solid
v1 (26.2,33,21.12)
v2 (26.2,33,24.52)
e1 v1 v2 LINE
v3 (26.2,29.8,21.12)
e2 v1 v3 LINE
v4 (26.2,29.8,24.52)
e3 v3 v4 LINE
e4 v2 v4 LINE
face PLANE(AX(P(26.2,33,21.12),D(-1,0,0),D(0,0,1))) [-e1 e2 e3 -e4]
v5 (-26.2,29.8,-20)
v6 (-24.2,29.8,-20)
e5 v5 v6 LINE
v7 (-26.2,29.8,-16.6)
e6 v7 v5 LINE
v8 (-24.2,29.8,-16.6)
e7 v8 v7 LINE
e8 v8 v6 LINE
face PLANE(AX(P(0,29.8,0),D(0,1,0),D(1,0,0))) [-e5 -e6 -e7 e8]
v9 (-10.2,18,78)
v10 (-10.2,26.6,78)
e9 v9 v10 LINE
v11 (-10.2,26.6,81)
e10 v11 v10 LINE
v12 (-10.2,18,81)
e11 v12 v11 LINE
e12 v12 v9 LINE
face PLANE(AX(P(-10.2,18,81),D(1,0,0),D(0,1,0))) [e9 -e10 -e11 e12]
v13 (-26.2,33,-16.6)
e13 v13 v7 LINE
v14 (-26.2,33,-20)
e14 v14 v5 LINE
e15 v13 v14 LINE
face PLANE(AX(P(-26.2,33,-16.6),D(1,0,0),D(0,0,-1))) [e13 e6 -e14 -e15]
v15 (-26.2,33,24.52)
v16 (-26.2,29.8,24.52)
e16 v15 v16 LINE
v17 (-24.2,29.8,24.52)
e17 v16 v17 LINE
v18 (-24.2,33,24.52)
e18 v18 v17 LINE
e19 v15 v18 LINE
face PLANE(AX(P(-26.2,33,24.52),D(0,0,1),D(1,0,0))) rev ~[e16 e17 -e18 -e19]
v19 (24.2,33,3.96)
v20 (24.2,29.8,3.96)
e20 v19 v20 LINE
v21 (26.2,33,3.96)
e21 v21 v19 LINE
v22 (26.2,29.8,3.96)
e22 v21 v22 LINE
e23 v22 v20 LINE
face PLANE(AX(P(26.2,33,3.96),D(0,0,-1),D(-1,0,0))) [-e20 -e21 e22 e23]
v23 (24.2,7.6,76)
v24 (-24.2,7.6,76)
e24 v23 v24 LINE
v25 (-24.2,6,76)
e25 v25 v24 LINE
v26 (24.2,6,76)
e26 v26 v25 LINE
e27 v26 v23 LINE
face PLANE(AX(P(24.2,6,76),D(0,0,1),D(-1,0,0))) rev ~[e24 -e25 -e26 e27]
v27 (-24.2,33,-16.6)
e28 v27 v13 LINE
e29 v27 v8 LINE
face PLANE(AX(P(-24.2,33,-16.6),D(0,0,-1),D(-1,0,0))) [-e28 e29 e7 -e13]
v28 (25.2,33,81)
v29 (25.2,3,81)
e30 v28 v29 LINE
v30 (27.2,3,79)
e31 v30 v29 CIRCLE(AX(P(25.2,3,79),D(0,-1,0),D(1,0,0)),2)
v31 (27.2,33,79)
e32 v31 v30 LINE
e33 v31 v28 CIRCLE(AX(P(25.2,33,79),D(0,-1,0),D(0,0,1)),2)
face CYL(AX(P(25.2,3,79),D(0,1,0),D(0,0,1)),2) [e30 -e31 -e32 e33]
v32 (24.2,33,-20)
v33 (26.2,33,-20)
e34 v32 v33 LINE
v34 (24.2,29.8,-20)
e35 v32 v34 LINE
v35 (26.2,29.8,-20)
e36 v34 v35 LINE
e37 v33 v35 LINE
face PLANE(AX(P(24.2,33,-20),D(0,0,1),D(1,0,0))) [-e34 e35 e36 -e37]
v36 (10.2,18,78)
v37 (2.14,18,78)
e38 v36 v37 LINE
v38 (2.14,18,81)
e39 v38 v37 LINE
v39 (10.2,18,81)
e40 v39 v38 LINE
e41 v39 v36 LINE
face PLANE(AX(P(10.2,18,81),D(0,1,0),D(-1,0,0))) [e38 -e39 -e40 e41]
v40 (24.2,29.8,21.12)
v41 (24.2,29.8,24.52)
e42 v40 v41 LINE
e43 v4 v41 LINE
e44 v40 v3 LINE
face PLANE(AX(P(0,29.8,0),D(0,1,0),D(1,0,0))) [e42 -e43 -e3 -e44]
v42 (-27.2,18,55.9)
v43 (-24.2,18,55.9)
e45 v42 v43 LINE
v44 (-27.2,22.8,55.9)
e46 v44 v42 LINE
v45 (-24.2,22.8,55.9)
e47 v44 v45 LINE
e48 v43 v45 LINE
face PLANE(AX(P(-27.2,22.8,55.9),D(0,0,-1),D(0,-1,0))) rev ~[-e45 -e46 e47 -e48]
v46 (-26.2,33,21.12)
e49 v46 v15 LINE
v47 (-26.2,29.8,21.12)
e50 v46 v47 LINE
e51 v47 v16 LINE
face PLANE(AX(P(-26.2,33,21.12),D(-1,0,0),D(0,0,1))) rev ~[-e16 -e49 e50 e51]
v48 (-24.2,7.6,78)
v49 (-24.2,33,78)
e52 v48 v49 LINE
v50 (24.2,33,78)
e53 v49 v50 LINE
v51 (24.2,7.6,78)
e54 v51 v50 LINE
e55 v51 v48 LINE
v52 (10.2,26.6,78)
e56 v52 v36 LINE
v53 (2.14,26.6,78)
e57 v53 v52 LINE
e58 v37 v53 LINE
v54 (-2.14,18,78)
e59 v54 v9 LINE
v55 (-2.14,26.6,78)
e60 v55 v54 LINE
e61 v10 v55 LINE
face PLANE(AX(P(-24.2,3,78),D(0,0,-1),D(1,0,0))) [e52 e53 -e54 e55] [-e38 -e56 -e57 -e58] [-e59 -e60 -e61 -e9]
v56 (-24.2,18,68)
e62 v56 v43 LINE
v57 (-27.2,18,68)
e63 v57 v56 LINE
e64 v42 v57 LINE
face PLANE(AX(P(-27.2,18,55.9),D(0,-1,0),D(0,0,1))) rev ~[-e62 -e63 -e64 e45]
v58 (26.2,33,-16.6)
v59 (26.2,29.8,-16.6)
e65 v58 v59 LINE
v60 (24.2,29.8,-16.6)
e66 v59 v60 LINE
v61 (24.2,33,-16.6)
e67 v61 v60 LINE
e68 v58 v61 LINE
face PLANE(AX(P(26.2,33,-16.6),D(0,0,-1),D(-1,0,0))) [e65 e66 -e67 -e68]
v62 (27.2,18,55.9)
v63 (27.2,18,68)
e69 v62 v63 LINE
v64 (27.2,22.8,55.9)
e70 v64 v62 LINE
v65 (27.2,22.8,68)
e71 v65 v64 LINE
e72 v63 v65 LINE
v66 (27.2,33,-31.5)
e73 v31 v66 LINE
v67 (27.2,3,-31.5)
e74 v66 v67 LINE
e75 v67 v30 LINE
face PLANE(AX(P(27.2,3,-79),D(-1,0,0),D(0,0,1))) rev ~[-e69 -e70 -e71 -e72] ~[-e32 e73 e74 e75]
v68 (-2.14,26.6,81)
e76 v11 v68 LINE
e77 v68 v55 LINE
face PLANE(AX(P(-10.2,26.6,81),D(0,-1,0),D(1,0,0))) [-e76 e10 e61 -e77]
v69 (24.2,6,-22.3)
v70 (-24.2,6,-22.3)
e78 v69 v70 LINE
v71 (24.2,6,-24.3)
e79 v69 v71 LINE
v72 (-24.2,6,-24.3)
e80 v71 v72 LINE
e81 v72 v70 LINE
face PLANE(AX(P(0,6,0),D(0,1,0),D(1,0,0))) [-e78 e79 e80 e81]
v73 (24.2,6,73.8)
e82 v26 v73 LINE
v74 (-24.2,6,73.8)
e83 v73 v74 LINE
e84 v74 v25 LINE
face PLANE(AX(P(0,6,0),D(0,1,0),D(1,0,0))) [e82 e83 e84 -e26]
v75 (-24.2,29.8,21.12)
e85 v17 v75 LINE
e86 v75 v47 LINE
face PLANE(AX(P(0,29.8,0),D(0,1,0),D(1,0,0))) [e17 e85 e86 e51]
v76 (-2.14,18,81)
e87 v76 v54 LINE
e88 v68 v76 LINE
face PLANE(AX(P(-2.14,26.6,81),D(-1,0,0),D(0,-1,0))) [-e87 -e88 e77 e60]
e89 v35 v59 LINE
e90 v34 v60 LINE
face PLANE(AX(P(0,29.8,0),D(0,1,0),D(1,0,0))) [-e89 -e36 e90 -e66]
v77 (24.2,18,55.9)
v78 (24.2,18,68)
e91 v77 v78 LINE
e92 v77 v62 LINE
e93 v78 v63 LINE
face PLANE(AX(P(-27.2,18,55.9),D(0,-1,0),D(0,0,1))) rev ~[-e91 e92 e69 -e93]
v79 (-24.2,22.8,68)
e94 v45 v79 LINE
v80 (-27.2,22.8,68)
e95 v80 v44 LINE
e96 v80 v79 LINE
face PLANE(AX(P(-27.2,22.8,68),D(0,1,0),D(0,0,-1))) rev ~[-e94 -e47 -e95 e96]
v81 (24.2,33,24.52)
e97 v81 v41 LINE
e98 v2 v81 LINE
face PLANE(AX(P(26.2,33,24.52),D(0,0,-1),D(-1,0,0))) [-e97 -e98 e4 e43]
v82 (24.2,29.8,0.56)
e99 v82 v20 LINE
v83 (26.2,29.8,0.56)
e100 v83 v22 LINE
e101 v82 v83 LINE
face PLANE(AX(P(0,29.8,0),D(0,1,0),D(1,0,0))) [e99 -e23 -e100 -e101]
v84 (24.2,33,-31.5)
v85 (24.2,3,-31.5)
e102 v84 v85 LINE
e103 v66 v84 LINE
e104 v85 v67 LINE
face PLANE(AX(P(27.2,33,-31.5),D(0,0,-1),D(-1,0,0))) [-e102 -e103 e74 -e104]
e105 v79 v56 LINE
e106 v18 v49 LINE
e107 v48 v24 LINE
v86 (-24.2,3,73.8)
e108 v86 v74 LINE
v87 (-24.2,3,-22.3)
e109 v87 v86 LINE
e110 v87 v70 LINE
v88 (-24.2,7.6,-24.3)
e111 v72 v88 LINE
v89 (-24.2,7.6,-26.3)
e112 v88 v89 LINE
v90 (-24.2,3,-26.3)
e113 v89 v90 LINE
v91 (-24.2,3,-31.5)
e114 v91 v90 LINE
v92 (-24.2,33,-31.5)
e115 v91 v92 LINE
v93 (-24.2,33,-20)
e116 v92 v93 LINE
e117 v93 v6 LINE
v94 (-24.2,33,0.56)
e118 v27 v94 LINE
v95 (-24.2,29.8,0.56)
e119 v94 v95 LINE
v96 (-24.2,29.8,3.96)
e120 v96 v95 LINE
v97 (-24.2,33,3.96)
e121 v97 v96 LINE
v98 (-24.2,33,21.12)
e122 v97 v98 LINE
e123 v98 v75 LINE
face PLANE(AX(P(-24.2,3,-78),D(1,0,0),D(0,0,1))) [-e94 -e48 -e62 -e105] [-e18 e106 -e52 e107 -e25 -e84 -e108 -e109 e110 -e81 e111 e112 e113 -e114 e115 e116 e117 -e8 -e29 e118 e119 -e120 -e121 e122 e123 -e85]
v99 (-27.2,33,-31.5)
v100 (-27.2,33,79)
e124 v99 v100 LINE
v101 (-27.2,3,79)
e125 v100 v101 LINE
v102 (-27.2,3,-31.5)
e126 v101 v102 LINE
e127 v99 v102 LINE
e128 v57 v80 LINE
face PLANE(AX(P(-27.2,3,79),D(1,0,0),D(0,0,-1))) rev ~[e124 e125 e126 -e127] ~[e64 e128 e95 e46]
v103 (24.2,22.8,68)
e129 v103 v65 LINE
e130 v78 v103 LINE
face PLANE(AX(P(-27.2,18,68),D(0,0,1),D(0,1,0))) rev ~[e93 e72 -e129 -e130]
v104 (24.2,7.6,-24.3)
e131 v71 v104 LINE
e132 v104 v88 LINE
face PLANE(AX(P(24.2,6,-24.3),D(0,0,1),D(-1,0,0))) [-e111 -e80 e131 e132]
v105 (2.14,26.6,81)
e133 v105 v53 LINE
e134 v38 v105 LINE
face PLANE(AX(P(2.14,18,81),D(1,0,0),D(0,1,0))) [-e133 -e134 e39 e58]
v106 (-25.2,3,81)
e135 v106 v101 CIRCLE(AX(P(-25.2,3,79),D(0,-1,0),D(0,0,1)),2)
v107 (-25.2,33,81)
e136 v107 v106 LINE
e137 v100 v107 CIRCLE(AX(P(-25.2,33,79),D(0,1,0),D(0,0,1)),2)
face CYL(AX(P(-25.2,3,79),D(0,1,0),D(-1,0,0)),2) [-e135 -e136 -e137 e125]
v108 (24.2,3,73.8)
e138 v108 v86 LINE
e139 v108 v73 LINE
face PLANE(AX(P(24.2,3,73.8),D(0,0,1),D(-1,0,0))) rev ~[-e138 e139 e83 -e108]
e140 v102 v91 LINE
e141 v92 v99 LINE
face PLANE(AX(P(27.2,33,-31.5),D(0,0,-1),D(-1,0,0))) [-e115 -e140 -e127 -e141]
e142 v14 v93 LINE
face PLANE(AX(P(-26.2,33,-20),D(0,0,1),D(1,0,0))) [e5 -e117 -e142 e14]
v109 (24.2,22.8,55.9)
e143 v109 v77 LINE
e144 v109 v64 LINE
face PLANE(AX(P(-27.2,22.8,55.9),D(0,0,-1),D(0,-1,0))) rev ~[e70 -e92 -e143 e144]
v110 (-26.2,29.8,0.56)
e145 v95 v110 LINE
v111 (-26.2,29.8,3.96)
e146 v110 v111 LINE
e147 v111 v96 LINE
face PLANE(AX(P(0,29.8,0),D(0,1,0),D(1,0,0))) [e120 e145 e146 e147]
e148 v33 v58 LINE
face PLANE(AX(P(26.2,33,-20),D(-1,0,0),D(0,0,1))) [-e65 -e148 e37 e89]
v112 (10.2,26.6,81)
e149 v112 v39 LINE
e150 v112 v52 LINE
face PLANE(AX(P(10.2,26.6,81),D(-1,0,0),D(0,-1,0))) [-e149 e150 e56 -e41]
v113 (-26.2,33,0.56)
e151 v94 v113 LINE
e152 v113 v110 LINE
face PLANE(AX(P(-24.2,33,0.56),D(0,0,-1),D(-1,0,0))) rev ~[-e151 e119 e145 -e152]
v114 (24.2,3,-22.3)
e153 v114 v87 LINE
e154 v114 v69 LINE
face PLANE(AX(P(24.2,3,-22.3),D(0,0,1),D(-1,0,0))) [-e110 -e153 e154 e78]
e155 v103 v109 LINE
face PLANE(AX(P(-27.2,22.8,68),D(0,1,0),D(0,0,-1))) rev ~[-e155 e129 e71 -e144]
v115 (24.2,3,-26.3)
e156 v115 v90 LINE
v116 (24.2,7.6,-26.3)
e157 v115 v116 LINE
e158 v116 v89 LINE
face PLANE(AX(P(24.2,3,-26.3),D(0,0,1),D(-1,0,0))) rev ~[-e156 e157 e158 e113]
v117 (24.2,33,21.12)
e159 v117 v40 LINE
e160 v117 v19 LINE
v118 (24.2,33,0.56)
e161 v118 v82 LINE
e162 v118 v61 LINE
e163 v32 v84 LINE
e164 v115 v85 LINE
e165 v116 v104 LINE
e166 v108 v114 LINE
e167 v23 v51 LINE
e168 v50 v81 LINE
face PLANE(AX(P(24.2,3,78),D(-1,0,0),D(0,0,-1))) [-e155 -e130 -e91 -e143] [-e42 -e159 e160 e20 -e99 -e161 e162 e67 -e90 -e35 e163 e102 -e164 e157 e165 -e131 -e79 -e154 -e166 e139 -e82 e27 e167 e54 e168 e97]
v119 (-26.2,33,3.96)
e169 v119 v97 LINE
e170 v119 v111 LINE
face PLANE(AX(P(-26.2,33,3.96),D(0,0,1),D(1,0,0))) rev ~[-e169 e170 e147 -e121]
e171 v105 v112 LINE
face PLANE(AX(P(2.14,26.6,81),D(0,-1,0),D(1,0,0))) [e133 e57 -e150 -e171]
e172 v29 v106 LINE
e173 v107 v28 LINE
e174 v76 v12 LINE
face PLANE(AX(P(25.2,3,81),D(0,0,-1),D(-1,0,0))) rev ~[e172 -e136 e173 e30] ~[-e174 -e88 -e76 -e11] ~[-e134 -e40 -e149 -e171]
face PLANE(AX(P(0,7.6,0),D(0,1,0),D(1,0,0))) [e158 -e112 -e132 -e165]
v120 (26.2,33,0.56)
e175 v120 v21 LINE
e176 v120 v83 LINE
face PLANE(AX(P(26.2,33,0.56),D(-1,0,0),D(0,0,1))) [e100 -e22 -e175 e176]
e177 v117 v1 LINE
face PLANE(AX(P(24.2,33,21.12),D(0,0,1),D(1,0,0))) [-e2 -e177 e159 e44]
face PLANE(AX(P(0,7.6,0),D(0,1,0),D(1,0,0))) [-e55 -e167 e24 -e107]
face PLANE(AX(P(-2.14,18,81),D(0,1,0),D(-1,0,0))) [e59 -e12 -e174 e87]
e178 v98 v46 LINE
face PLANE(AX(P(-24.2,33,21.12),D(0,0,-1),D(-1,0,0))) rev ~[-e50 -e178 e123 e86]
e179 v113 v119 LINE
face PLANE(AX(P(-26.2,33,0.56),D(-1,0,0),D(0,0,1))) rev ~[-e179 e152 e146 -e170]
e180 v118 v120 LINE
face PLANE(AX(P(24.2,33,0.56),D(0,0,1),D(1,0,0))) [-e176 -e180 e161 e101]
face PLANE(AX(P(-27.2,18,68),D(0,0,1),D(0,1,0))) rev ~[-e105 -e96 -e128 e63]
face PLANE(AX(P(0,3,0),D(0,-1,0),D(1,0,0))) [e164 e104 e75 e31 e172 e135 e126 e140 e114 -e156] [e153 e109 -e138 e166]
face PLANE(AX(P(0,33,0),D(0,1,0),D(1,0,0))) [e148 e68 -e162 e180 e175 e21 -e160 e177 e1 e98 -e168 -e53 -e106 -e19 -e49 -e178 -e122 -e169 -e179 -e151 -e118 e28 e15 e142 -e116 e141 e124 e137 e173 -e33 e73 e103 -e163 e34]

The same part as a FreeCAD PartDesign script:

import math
import FreeCAD as App
import Part
import Sketcher

V = App.Vector


def edges_at(feature, points):
    """Names of the edges that pass closest to the given points."""
    edges = feature.Shape.Edges
    near = lambda p: min(range(len(edges)), key=lambda i: edges[i].distToShape(Part.Vertex(*p))[0])
    return sorted({f"Edge{near(p) + 1}" for p in points})


def add_polygon(sketch, points):
    """Adds a closed chain of lines whose ends are joined by coincident constraints."""
    first, n = sketch.GeometryCount, len(points)
    for a, b in zip(points, points[1:] + points[:1]):
        sketch.addGeometry(Part.LineSegment(App.Vector(*a, 0), App.Vector(*b, 0)), False)
    for i in range(n):
        sketch.addConstraint(Sketcher.Constraint("Coincident", first + i, 2, first + (i + 1) % n, 1))

doc = App.newDocument("Part")
body = doc.addObject("PartDesign::Body", "Body")

sketch1 = body.newObject("Sketcher::SketchObject", "Sketch")
sketch1.AttachmentSupport = (doc.getObject("XZ_Plane"), [""])
sketch1.MapMode = "FlatFace"
add_polygon(sketch1, [(30, 84), (30, -84), (-30, -84), (-30, 84)])
sketch1.addConstraint([
    Sketcher.Constraint("Vertical", 0),
    Sketcher.Constraint("Horizontal", 1),
    Sketcher.Constraint("Vertical", 2),
    Sketcher.Constraint("Horizontal", 3),
    Sketcher.Constraint("Symmetric", 0, 2, 2, 2, -1, 1),
    Sketcher.Constraint("DistanceY", 0, 2, 0, 1, 168.0),
    Sketcher.Constraint("DistanceX", 1, 2, 1, 1, 60.4),
])
pad1 = body.newObject("PartDesign::Pad", "Pad")
pad1.Profile = sketch1
pad1.Length = 3
pad1.Reversed = True

sketch2 = body.newObject("Sketcher::SketchObject", "Sketch001")
sketch2.AttachmentSupport = (doc.getObject("XZ_Plane"), [""])
sketch2.MapMode = "FlatFace"
sketch2.AttachmentOffset = App.Placement(V(0, 0, -3), App.Rotation())
add_polygon(sketch2, [(27, 81), (27, -81), (-27, -81), (-27, 81)])
add_polygon(sketch2, [(-24, -78), (24, -78), (24, 78), (-24, 78)])
sketch2.addConstraint([
    Sketcher.Constraint("Vertical", 0),
    Sketcher.Constraint("Horizontal", 1),
    Sketcher.Constraint("Vertical", 2),
    Sketcher.Constraint("Horizontal", 3),
    Sketcher.Constraint("Horizontal", 4),
    Sketcher.Constraint("Vertical", 5),
    Sketcher.Constraint("Horizontal", 6),
    Sketcher.Constraint("Vertical", 7),
    Sketcher.Constraint("Symmetric", 0, 2, 2, 2, -1, 1),
    Sketcher.Constraint("Symmetric", 4, 2, 6, 2, -1, 1),
    Sketcher.Constraint("DistanceX", 4, 2, 0, 2, 3.0),
    Sketcher.Constraint("DistanceY", 0, 2, 4, 2, 3.0),
    Sketcher.Constraint("DistanceY", 0, 2, 0, 1, 162.0),
    Sketcher.Constraint("DistanceX", 1, 2, 1, 1, 54.4),
])
pad2 = body.newObject("PartDesign::Pad", "Pad001")
pad2.Profile = sketch2
pad2.Length = 30
pad2.Reversed = True
doc.recompute()

fillet = body.newObject("PartDesign::Fillet", "Fillet")
fillet.Base = (pad2, edges_at(pad2, [
    (27.2, 18, 81),
    (-27.2, 18, 81),
    (-30.2, 1.5, 84),
    (30.2, 1.5, 84),
    (27.2, 18, -81),
    (-27.2, 18, -81),
    (30.2, 1.5, -84),
    (-30.2, 1.5, -84),
]))
fillet.Radius = 2

sketch3 = body.newObject("Sketcher::SketchObject", "Sketch002")
sketch3.AttachmentSupport = (doc.getObject("XZ_Plane"), [""])
sketch3.MapMode = "FlatFace"
sketch3.AttachmentOffset = App.Placement(V(0, 0, -3), App.Rotation())
add_polygon(sketch3, [(24.2, -22.3), (24.2, -26.3), (-24.2, -26.3), (-24.2, -22.3)])
add_polygon(sketch3, [(24.2, 78), (24.2, 73.8), (-24.2, 73.8), (-24.2, 78)])
sketch3.addConstraint([
    Sketcher.Constraint("Vertical", 0),
    Sketcher.Constraint("Horizontal", 1),
    Sketcher.Constraint("Vertical", 2),
    Sketcher.Constraint("Horizontal", 3),
    Sketcher.Constraint("Vertical", 4),
    Sketcher.Constraint("Horizontal", 5),
    Sketcher.Constraint("Vertical", 6),
    Sketcher.Constraint("Horizontal", 7),
    Sketcher.Constraint("Vertical", 3, 2, 4, 2),
    Sketcher.Constraint("Vertical", 2, 2, 5, 2),
    Sketcher.Constraint("DistanceY", 0, 2, 0, 1, 4.0),
    Sketcher.Constraint("DistanceY", 4, 2, 4, 1, 4.2),
    Sketcher.Constraint("DistanceY", 3, 2, 4, 2, 96.1),
    Sketcher.Constraint("DistanceX", 1, 2, 1, 1, 48.4),
    Sketcher.Constraint("DistanceY", -1, 1, 6, 2, 78.0),
    Sketcher.Constraint("DistanceX", -1, 1, 0, 2, 24.2),
])
pad3 = body.newObject("PartDesign::Pad", "Pad002")
pad3.Profile = sketch3
pad3.Length = 3
pad3.Reversed = True

sketch4 = body.newObject("Sketcher::SketchObject", "Sketch003")
sketch4.AttachmentSupport = (doc.getObject("XZ_Plane"), [""])
sketch4.MapMode = "FlatFace"
sketch4.AttachmentOffset = App.Placement(V(0, 0, -6), App.Rotation())
add_polygon(sketch4, [(-24.2, -26.3), (-24.2, -24.3), (24.2, -24.3), (24.2, -26.3)])
add_polygon(sketch4, [(24.2, 78), (24.2, 76), (-24.2, 76), (-24.2, 78)])
sketch4.addConstraint([
    Sketcher.Constraint("Vertical", 0),
    Sketcher.Constraint("Horizontal", 1),
    Sketcher.Constraint("Vertical", 2),
    Sketcher.Constraint("Horizontal", 3),
    Sketcher.Constraint("Vertical", 4),
    Sketcher.Constraint("Horizontal", 5),
    Sketcher.Constraint("Vertical", 6),
    Sketcher.Constraint("Horizontal", 7),
    Sketcher.Constraint("Vertical", 2, 2, 4, 2),
    Sketcher.Constraint("Vertical", 3, 2, 5, 2),
    Sketcher.Constraint("Equal", 2, 4),
    Sketcher.Constraint("DistanceY", 0, 1, 0, 2, 2.0),
    Sketcher.Constraint("DistanceX", 1, 1, 1, 2, 48.4),
    Sketcher.Constraint("DistanceY", -1, 1, 4, 2, 76.0),
    Sketcher.Constraint("DistanceX", 0, 2, -1, 1, 24.2),
    Sketcher.Constraint("DistanceY", 0, 2, -1, 1, 24.3),
])
pad4 = body.newObject("PartDesign::Pad", "Pad003")
pad4.Profile = sketch4
pad4.Length = 1.6
pad4.Reversed = True

sketch5 = body.newObject("Sketcher::SketchObject", "Sketch004")
sketch5.AttachmentSupport = (doc.getObject("XY_Plane"), [""])
sketch5.MapMode = "FlatFace"
sketch5.AttachmentOffset = App.Placement(V(0, 0, 81), App.Rotation())
add_polygon(sketch5, [(-2, 27), (-10, 27), (-10, 18), (-2, 18)])
add_polygon(sketch5, [(10, 27), (2, 27), (2, 18), (10, 18)])
sketch5.addConstraint([
    Sketcher.Constraint("Horizontal", 0),
    Sketcher.Constraint("Vertical", 1),
    Sketcher.Constraint("Horizontal", 2),
    Sketcher.Constraint("Vertical", 3),
    Sketcher.Constraint("Horizontal", 4),
    Sketcher.Constraint("Vertical", 5),
    Sketcher.Constraint("Horizontal", 6),
    Sketcher.Constraint("Vertical", 7),
    Sketcher.Constraint("Symmetric", 3, 2, 4, 2, -2),
    Sketcher.Constraint("Symmetric", 1, 2, 6, 2, -2),
    Sketcher.Constraint("DistanceY", 1, 2, 1, 1, 8.6),
    Sketcher.Constraint("DistanceX", 0, 2, 0, 1, 8.06),
    Sketcher.Constraint("DistanceY", -1, 1, 1, 2, 18.0),
    Sketcher.Constraint("DistanceX", 0, 2, -1, 1, 10.2),
])
pocket1 = body.newObject("PartDesign::Pocket", "Pocket")
pocket1.Profile = sketch5
pocket1.Length = 3

sketch6 = body.newObject("Sketcher::SketchObject", "Sketch005")
sketch6.AttachmentSupport = (doc.getObject("XZ_Plane"), [""])
sketch6.MapMode = "FlatFace"
sketch6.AttachmentOffset = App.Placement(V(0, 0, -3), App.Rotation())
sketch6.addGeometry([
    Part.LineSegment(V(28.2, -84, 0), V(-28.2, -84, 0)),
    Part.ArcOfCircle(Part.Circle(V(-28.2, -82, 0), V(0, 0, 1), 2), math.radians(180), math.radians(270)),
    Part.LineSegment(V(-30.2, -82, 0), V(-30.2, 82, 0)),
    Part.ArcOfCircle(Part.Circle(V(-28.2, 82, 0), V(0, 0, 1), 2), math.radians(90), math.radians(180)),
    Part.LineSegment(V(-28.2, 84, 0), V(28.2, 84, 0)),
    Part.ArcOfCircle(Part.Circle(V(28.2, 82, 0), V(0, 0, 1), 2), math.radians(0), math.radians(90)),
    Part.LineSegment(V(30.2, 82, 0), V(30.2, -82, 0)),
    Part.ArcOfCircle(Part.Circle(V(28.2, -82, 0), V(0, 0, 1), 2), math.radians(-90), math.radians(0)),
    Part.ArcOfCircle(Part.Circle(V(-25.2, -79, 0), V(0, 0, 1), 2), math.radians(180), math.radians(270)),
    Part.LineSegment(V(-25.2, -81, 0), V(25.2, -81, 0)),
    Part.ArcOfCircle(Part.Circle(V(25.2, -79, 0), V(0, 0, 1), 2), math.radians(-90), math.radians(0)),
    Part.LineSegment(V(27.2, -79, 0), V(27.2, 79, 0)),
    Part.ArcOfCircle(Part.Circle(V(25.2, 79, 0), V(0, 0, 1), 2), math.radians(0), math.radians(90)),
    Part.LineSegment(V(25.2, 81, 0), V(-25.2, 81, 0)),
    Part.ArcOfCircle(Part.Circle(V(-25.2, 79, 0), V(0, 0, 1), 2), math.radians(90), math.radians(180)),
    Part.LineSegment(V(-27.2, 79, 0), V(-27.2, -79, 0)),
], False)
sketch6.addConstraint([
    Sketcher.Constraint("Tangent", 0, 2, 1, 2),
    Sketcher.Constraint("Tangent", 1, 1, 2, 1),
    Sketcher.Constraint("Tangent", 2, 2, 3, 2),
    Sketcher.Constraint("Tangent", 3, 1, 4, 1),
    Sketcher.Constraint("Tangent", 4, 2, 5, 2),
    Sketcher.Constraint("Tangent", 5, 1, 6, 1),
    Sketcher.Constraint("Tangent", 6, 2, 7, 2),
    Sketcher.Constraint("Tangent", 7, 1, 0, 1),
    Sketcher.Constraint("Tangent", 8, 2, 9, 1),
    Sketcher.Constraint("Tangent", 9, 2, 10, 1),
    Sketcher.Constraint("Tangent", 10, 2, 11, 1),
    Sketcher.Constraint("Tangent", 11, 2, 12, 1),
    Sketcher.Constraint("Tangent", 12, 2, 13, 1),
    Sketcher.Constraint("Tangent", 13, 2, 14, 1),
    Sketcher.Constraint("Tangent", 14, 2, 15, 1),
    Sketcher.Constraint("Tangent", 15, 2, 8, 1),
    Sketcher.Constraint("Horizontal", 0),
    Sketcher.Constraint("Vertical", 2),
    Sketcher.Constraint("Horizontal", 4),
    Sketcher.Constraint("Vertical", 6),
    Sketcher.Constraint("Horizontal", 9),
    Sketcher.Constraint("Vertical", 11),
    Sketcher.Constraint("Horizontal", 13),
    Sketcher.Constraint("Vertical", 15),
    Sketcher.Constraint("Equal", 1, 3),
    Sketcher.Constraint("Equal", 3, 5),
    Sketcher.Constraint("Equal", 5, 7),
    Sketcher.Constraint("Equal", 7, 8),
    Sketcher.Constraint("Equal", 8, 10),
    Sketcher.Constraint("Equal", 10, 12),
    Sketcher.Constraint("Equal", 12, 14),
    Sketcher.Constraint("Symmetric", 1, 3, 5, 3, -1, 1),
    Sketcher.Constraint("Symmetric", 8, 3, 12, 3, -1, 1),
    Sketcher.Constraint("Radius", 1, 2.0),
    Sketcher.Constraint("DistanceY", 2, 1, 2, 2, 164.0),
    Sketcher.Constraint("DistanceY", 11, 1, 11, 2, 158.0),
    Sketcher.Constraint("DistanceX", 0, 2, 0, 1, 56.4),
    Sketcher.Constraint("DistanceX", 9, 1, 9, 2, 50.4),
])
pocket2 = body.newObject("PartDesign::Pocket", "Pocket001")
pocket2.Profile = sketch6
pocket2.Length = 3
pocket2.Reversed = True

sketch7 = body.newObject("Sketcher::SketchObject", "Sketch006")
sketch7.AttachmentSupport = (doc.getObject("XY_Plane"), [""])
sketch7.MapMode = "FlatFace"
sketch7.AttachmentOffset = App.Placement(V(0, 0, -81), App.Rotation())
add_polygon(sketch7, [(-24, 23), (24, 23), (24, 13), (-24, 13)])
sketch7.addConstraint([
    Sketcher.Constraint("Horizontal", 0),
    Sketcher.Constraint("Vertical", 1),
    Sketcher.Constraint("Horizontal", 2),
    Sketcher.Constraint("Vertical", 3),
    Sketcher.Constraint("DistanceY", 1, 2, 1, 1, 9.6),
    Sketcher.Constraint("DistanceY", -1, 1, 0, 2, 23.0),
    Sketcher.Constraint("DistanceX", 0, 1, 0, 2, 48.4),
    Sketcher.Constraint("DistanceX", -1, 1, 0, 2, 24.2),
])
pad5 = body.newObject("PartDesign::Pad", "Pad004")
pad5.Profile = sketch7
pad5.Length = 6
pad5.Reversed = True

sketch8 = body.newObject("Sketcher::SketchObject", "Sketch007")
sketch8.AttachmentSupport = (doc.getObject("YZ_Plane"), [""])
sketch8.MapMode = "FlatFace"
sketch8.AttachmentOffset = App.Placement(V(0, 0, -24.2), App.Rotation())
add_polygon(sketch8, [(20, -81), (23, -81), (23, -84.4), (20, -84.4)])
add_polygon(sketch8, [(13.4, -81), (16.4, -81), (16.4, -84.4), (13.4, -84.4)])
sketch8.addConstraint([
    Sketcher.Constraint("Horizontal", 0),
    Sketcher.Constraint("Vertical", 1),
    Sketcher.Constraint("Horizontal", 2),
    Sketcher.Constraint("Vertical", 3),
    Sketcher.Constraint("Horizontal", 4),
    Sketcher.Constraint("Vertical", 5),
    Sketcher.Constraint("Horizontal", 6),
    Sketcher.Constraint("Vertical", 7),
    Sketcher.Constraint("Horizontal", 3, 2, 4, 2),
    Sketcher.Constraint("Horizontal", 2, 2, 5, 2),
    Sketcher.Constraint("Equal", 2, 4),
    Sketcher.Constraint("DistanceX", 0, 1, 0, 2, 3.0),
    Sketcher.Constraint("DistanceY", 1, 2, 1, 1, 3.4),
    Sketcher.Constraint("DistanceX", -1, 1, 0, 2, 23.0),
    Sketcher.Constraint("DistanceY", 0, 2, -1, 1, 81.0),
    Sketcher.Constraint("DistanceX", -1, 1, 4, 2, 16.4),
])
pocket3 = body.newObject("PartDesign::Pocket", "Pocket002")
pocket3.Profile = sketch8
pocket3.Length = 48.4
pocket3.Reversed = True
doc.recompute()

fillet2 = body.newObject("PartDesign::Fillet", "Fillet001")
fillet2.Base = (pocket3, edges_at(pocket3, [
    (0, 23, -87),
    (0, 23, -84.4),
    (0, 13.4, -87),
    (0, 13.4, -84.4),
    (-24.2, 14.9, -84.4),
    (-24.2, 18.2, -87),
    (-24.2, 21.5, -84.4),
    (-24.2, 23, -85.7),
    (-24.2, 13.4, -85.7),
    (-24.2, 16.4, -82.7),
    (-24.2, 20, -82.7),
    (24.2, 20, -82.7),
    (24.2, 16.4, -82.7),
    (24.2, 14.9, -84.4),
    (24.2, 21.5, -84.4),
    (24.2, 23, -85.7),
    (24.2, 18.2, -87),
    (24.2, 13.4, -85.7),
]))
fillet2.Radius = 1

sketch9 = body.newObject("Sketcher::SketchObject", "Sketch008")
sketch9.AttachmentSupport = (doc.getObject("YZ_Plane"), [""])
sketch9.MapMode = "FlatFace"
sketch9.AttachmentOffset = App.Placement(V(0, 0, -27.2), App.Rotation())
add_polygon(sketch9, [(18, 68), (22.8, 68), (22.8, 55.9), (18, 55.9)])
sketch9.addConstraint([
    Sketcher.Constraint("Horizontal", 0),
    Sketcher.Constraint("Vertical", 1),
    Sketcher.Constraint("Horizontal", 2),
    Sketcher.Constraint("Vertical", 3),
    Sketcher.Constraint("DistanceX", 0, 1, 0, 2, 4.8),
    Sketcher.Constraint("DistanceY", 1, 2, 1, 1, 12.1),
    Sketcher.Constraint("DistanceX", -1, 1, 2, 2, 18.0),
    Sketcher.Constraint("DistanceY", -1, 1, 0, 2, 68.0),
])
pocket4 = body.newObject("PartDesign::Pocket", "Pocket003")
pocket4.Profile = sketch9
pocket4.Type = "ThroughAll"
pocket4.Reversed = True

sketch10 = body.newObject("Sketcher::SketchObject", "Sketch009")
sketch10.AttachmentSupport = (doc.getObject("XZ_Plane"), [""])
sketch10.MapMode = "FlatFace"
sketch10.AttachmentOffset = App.Placement(V(0, 0, -33), App.Rotation())
add_polygon(sketch10, [(26.2, -20), (24.2, -20), (24.2, -16.6), (26.2, -16.6)])
add_polygon(sketch10, [(26.2, 0.6), (24.2, 0.6), (24.2, 4), (26.2, 4)])
add_polygon(sketch10, [(-24.2, -16.6), (-24.2, -20), (-26.2, -20), (-26.2, -16.6)])
add_polygon(sketch10, [(26.2, 21.1), (24.2, 21.1), (24.2, 24.5), (26.2, 24.5)])
add_polygon(sketch10, [(-24.2, 4), (-24.2, 0.6), (-26.2, 0.6), (-26.2, 4)])
add_polygon(sketch10, [(-24.2, 24.5), (-24.2, 21.1), (-26.2, 21.1), (-26.2, 24.5)])
sketch10.addConstraint([
    Sketcher.Constraint("Horizontal", 0),
    Sketcher.Constraint("Vertical", 1),
    Sketcher.Constraint("Horizontal", 2),
    Sketcher.Constraint("Vertical", 3),
    Sketcher.Constraint("Horizontal", 4),
    Sketcher.Constraint("Vertical", 5),
    Sketcher.Constraint("Horizontal", 6),
    Sketcher.Constraint("Vertical", 7),
    Sketcher.Constraint("Vertical", 8),
    Sketcher.Constraint("Horizontal", 9),
    Sketcher.Constraint("Vertical", 10),
    Sketcher.Constraint("Horizontal", 11),
    Sketcher.Constraint("Horizontal", 12),
    Sketcher.Constraint("Vertical", 13),
    Sketcher.Constraint("Horizontal", 14),
    Sketcher.Constraint("Vertical", 15),
    Sketcher.Constraint("Vertical", 16),
    Sketcher.Constraint("Horizontal", 17),
    Sketcher.Constraint("Vertical", 18),
    Sketcher.Constraint("Horizontal", 19),
    Sketcher.Constraint("Vertical", 20),
    Sketcher.Constraint("Horizontal", 21),
    Sketcher.Constraint("Vertical", 22),
    Sketcher.Constraint("Horizontal", 23),
    Sketcher.Constraint("Symmetric", 0, 2, 8, 2, -2),
    Sketcher.Constraint("Symmetric", 2, 2, 10, 2, -2),
    Sketcher.Constraint("Symmetric", 4, 2, 16, 2, -2),
    Sketcher.Constraint("Symmetric", 6, 2, 18, 2, -2),
    Sketcher.Constraint("Symmetric", 12, 2, 20, 2, -2),
    Sketcher.Constraint("Symmetric", 14, 2, 22, 2, -2),
    Sketcher.Constraint("Vertical", 1, 2, 4, 2),
    Sketcher.Constraint("Vertical", 3, 2, 6, 2),
    Sketcher.Constraint("Vertical", 5, 2, 12, 2),
    Sketcher.Constraint("Vertical", 7, 2, 14, 2),
    Sketcher.Constraint("Equal", 3, 5),
    Sketcher.Constraint("Equal", 10, 13),
    Sketcher.Constraint("DistanceX", 0, 2, 0, 1, 2.0),
    Sketcher.Constraint("DistanceY", 1, 1, 1, 2, 3.4),
    Sketcher.Constraint("DistanceY", 0, 2, 4, 2, 20.56),
    Sketcher.Constraint("DistanceY", 4, 2, 12, 2, 20.56),
    Sketcher.Constraint("DistanceY", 0, 2, -1, 1, 20.0),
    Sketcher.Constraint("DistanceX", -1, 1, 0, 2, 24.2),
])
pocket5 = body.newObject("PartDesign::Pocket", "Pocket004")
pocket5.Profile = sketch10
pocket5.Length = 3.2
pocket5.Reversed = True

sketch11 = body.newObject("Sketcher::SketchObject", "Sketch010")
sketch11.AttachmentSupport = (doc.getObject("XZ_Plane"), [""])
sketch11.MapMode = "FlatFace"
sketch11.AttachmentOffset = App.Placement(V(0, 0, -33), App.Rotation())
add_polygon(sketch11, [(27, -32), (27, -182), (-27, -182), (-27, -32)])
sketch11.addConstraint([
    Sketcher.Constraint("Vertical", 0),
    Sketcher.Constraint("Horizontal", 1),
    Sketcher.Constraint("Vertical", 2),
    Sketcher.Constraint("Horizontal", 3),
    Sketcher.Constraint("DistanceY", 0, 2, 0, 1, 150.0),
    Sketcher.Constraint("DistanceX", 1, 2, 1, 1, 54.4),
    Sketcher.Constraint("DistanceX", -1, 1, 0, 2, 27.2),
    Sketcher.Constraint("DistanceY", 0, 2, -1, 1, 181.5),
])
pocket6 = body.newObject("PartDesign::Pocket", "Pocket005")
pocket6.Profile = sketch11
pocket6.Type = "ThroughAll"
pocket6.Reversed = True

sketch12 = body.newObject("Sketcher::SketchObject", "Sketch011")
sketch12.AttachmentSupport = (doc.getObject("XZ_Plane"), [""])
sketch12.MapMode = "FlatFace"
sketch12.addGeometry([
    Part.LineSegment(V(-27.2, 79, 0), V(-27.2, -31.5, 0)),
    Part.LineSegment(V(-27.2, -31.5, 0), V(27.2, -31.5, 0)),
    Part.LineSegment(V(27.2, -31.5, 0), V(27.2, 79, 0)),
    Part.ArcOfCircle(Part.Circle(V(25.2, 79, 0), V(0, 0, 1), 2), math.radians(0), math.radians(90)),
    Part.LineSegment(V(25.2, 81, 0), V(-25.2, 81, 0)),
    Part.ArcOfCircle(Part.Circle(V(-25.2, 79, 0), V(0, 0, 1), 2), math.radians(90), math.radians(180)),
], False)
sketch12.addConstraint([
    Sketcher.Constraint("Coincident", 0, 2, 1, 1),
    Sketcher.Constraint("Coincident", 1, 2, 2, 1),
    Sketcher.Constraint("Tangent", 2, 2, 3, 1),
    Sketcher.Constraint("Tangent", 3, 2, 4, 1),
    Sketcher.Constraint("Tangent", 4, 2, 5, 1),
    Sketcher.Constraint("Tangent", 5, 2, 0, 1),
    Sketcher.Constraint("Vertical", 0),
    Sketcher.Constraint("Horizontal", 1),
    Sketcher.Constraint("Vertical", 2),
    Sketcher.Constraint("Horizontal", 4),
    Sketcher.Constraint("Equal", 3, 5),
    Sketcher.Constraint("Radius", 3, 2.0),
    Sketcher.Constraint("DistanceX", 1, 1, 1, 2, 54.4),
    Sketcher.Constraint("DistanceY", 0, 2, 0, 1, 110.5),
    Sketcher.Constraint("DistanceY", -1, 1, 3, 3, 79.0),
    Sketcher.Constraint("DistanceX", -1, 1, 3, 3, 25.2),
])
pocket7 = body.newObject("PartDesign::Pocket", "Pocket006")
pocket7.Profile = sketch12
pocket7.Length = 3

doc.recompute()
